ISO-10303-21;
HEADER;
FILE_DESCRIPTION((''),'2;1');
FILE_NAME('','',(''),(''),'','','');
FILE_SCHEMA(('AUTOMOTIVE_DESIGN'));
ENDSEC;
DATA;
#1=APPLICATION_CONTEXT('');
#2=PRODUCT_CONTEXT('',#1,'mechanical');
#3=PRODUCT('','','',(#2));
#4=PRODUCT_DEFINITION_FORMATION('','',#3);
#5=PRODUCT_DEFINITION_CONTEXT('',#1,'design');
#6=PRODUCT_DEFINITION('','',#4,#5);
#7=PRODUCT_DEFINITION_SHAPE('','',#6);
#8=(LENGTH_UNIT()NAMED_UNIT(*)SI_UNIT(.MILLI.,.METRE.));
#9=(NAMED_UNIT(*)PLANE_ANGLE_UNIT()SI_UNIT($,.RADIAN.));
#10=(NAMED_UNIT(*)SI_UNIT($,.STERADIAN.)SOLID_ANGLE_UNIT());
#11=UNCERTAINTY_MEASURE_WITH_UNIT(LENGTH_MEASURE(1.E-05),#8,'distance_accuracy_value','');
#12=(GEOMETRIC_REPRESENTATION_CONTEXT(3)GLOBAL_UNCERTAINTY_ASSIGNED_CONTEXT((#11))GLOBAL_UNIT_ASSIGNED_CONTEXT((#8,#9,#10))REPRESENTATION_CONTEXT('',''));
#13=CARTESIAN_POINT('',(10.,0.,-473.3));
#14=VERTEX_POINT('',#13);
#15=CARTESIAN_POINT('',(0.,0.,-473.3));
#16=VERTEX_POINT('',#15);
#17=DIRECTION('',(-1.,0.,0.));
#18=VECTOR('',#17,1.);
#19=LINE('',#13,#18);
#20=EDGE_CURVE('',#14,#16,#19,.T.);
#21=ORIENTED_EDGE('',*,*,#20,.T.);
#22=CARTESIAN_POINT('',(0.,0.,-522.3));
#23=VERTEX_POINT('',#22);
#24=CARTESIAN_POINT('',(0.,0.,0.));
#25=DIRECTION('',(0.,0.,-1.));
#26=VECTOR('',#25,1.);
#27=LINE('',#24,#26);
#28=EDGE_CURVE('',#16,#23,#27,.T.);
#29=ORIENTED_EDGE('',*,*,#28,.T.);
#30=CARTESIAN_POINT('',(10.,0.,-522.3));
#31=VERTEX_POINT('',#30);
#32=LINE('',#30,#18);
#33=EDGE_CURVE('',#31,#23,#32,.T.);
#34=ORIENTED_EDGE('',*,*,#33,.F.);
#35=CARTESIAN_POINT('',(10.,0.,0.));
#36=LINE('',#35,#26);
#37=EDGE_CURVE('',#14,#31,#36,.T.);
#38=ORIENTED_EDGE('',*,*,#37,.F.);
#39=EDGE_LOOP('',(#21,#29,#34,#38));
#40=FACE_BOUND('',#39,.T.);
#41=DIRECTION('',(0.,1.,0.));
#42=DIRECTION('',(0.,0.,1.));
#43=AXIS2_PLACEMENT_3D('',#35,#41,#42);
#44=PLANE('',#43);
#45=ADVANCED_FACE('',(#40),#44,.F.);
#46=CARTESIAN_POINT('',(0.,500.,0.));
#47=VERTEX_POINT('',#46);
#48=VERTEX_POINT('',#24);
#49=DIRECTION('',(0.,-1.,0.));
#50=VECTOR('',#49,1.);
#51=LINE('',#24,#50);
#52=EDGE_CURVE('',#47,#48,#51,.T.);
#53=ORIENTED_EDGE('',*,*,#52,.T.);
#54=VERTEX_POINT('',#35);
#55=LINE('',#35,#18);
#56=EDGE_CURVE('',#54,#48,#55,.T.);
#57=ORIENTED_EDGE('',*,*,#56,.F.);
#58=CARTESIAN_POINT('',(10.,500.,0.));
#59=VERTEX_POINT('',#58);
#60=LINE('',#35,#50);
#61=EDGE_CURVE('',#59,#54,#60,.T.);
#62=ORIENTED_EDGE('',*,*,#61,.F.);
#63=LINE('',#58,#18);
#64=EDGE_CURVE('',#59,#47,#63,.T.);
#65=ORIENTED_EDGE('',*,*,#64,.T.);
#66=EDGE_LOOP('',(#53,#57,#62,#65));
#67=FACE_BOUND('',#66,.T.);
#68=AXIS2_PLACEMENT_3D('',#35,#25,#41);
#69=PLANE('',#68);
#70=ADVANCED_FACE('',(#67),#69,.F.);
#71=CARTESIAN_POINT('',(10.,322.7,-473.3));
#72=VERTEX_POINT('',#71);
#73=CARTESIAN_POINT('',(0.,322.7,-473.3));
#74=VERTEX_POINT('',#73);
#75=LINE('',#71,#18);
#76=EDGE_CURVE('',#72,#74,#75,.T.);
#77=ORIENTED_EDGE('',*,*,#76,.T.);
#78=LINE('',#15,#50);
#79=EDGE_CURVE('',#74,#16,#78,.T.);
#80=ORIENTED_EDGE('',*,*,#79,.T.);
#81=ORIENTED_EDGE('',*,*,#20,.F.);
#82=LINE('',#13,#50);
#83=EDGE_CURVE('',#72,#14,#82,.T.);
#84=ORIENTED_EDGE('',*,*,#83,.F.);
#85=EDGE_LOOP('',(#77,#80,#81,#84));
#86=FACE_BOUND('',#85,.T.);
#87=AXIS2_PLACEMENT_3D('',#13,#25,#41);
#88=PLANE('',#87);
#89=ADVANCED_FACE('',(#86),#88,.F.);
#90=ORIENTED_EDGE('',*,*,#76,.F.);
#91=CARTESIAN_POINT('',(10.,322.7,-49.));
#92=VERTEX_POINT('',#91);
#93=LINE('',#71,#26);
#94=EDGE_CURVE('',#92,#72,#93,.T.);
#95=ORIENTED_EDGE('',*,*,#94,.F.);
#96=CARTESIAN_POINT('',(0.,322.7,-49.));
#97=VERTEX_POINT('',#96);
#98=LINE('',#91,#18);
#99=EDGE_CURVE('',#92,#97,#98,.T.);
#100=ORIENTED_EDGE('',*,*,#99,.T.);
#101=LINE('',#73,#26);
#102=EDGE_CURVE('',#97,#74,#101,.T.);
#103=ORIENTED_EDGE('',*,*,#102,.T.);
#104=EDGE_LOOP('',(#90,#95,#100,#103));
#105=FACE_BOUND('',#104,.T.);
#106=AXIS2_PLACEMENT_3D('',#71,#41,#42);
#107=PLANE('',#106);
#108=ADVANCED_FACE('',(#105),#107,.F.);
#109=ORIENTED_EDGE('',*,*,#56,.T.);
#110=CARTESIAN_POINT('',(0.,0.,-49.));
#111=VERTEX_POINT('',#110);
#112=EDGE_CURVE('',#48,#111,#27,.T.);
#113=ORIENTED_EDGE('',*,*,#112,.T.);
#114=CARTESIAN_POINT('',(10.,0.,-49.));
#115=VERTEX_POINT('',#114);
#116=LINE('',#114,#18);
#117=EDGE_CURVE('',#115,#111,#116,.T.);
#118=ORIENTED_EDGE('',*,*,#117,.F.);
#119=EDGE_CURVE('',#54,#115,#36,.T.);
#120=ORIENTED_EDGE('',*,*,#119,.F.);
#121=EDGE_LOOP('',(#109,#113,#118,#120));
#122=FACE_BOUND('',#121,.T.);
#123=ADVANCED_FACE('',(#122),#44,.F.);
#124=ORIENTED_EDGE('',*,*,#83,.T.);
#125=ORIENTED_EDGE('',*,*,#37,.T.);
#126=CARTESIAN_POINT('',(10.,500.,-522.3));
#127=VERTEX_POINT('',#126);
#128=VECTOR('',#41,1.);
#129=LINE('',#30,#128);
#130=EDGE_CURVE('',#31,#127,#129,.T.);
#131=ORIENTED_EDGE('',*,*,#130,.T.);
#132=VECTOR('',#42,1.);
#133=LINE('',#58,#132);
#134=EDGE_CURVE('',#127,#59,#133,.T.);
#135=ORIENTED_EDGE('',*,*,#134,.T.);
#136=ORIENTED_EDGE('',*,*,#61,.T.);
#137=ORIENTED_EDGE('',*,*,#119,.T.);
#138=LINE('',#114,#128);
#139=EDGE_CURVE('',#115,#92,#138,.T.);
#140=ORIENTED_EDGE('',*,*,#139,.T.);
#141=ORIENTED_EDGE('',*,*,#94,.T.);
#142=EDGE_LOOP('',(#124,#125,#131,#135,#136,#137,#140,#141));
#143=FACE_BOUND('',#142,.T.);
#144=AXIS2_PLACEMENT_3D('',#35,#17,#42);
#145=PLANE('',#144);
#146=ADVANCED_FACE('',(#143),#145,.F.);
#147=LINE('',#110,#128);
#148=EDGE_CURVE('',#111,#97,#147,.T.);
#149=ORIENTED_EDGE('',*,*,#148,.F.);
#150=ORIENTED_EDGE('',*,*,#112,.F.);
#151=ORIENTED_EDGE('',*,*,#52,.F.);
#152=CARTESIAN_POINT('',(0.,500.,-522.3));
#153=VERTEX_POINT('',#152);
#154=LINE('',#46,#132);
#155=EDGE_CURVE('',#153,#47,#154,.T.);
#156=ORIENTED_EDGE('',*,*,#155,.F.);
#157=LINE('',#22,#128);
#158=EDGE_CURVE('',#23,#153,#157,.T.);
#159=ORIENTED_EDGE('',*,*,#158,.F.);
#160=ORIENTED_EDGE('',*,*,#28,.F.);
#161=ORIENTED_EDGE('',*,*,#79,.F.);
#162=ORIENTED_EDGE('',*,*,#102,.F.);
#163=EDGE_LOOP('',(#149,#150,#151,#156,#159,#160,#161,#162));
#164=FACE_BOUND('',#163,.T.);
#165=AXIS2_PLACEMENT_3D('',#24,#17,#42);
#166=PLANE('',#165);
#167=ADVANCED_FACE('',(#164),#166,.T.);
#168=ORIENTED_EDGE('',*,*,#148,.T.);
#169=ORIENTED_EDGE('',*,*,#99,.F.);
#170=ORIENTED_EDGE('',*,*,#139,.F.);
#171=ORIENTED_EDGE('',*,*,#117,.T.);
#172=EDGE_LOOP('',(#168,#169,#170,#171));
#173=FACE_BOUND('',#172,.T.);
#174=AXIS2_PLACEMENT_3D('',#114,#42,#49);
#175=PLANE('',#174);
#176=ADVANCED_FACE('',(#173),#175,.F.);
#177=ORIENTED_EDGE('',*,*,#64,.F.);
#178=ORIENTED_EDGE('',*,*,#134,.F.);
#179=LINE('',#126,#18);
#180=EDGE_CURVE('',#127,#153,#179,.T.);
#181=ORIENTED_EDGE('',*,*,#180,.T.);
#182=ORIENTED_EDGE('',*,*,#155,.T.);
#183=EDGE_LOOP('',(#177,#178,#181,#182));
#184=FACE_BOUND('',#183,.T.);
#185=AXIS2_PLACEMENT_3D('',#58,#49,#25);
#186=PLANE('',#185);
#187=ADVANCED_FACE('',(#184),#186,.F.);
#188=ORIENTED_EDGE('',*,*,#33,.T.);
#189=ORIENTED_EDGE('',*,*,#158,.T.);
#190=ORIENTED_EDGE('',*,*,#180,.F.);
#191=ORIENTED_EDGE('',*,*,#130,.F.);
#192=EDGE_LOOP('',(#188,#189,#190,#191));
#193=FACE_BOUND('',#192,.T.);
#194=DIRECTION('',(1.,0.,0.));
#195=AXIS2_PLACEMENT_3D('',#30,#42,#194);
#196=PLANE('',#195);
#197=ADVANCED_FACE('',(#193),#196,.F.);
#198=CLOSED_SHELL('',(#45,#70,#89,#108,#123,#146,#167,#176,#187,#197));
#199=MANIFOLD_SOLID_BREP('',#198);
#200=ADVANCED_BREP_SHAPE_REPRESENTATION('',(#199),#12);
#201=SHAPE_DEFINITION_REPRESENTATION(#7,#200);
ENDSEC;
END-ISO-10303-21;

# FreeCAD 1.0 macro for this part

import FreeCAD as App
import Part
import Sketcher
from FreeCAD import Vector
Q = App.Units.Quantity

doc = App.newDocument("Part")
body = doc.addObject("PartDesign::Body", "Body")

# Sketch on YZ plane
sketch1 = body.newObject("Sketcher::SketchObject", "Sketch")
sketch1.AttachmentSupport = (doc.getObject("YZ_Plane"), [""])
sketch1.MapMode = "FlatFace"
sketch1.addGeometry(Part.LineSegment(Vector(500, 0, 0), Vector(0, 0, 0)), False)
sketch1.addGeometry(Part.LineSegment(Vector(0, 0, 0), Vector(0, -522, 0)), False)
sketch1.addGeometry(Part.LineSegment(Vector(0, -522, 0), Vector(500, -522, 0)), False)
sketch1.addGeometry(Part.LineSegment(Vector(500, -522, 0), Vector(500, 0, 0)), False)
sketch1.addConstraint(Sketcher.Constraint("Coincident", 0, 2, 1, 1))
sketch1.addConstraint(Sketcher.Constraint("Coincident", 1, 2, 2, 1))
sketch1.addConstraint(Sketcher.Constraint("Coincident", 2, 2, 3, 1))
sketch1.addConstraint(Sketcher.Constraint("Coincident", 3, 2, 0, 1))
sketch1.addConstraint(Sketcher.Constraint("Horizontal", 0))
sketch1.addConstraint(Sketcher.Constraint("Vertical", 1))
sketch1.addConstraint(Sketcher.Constraint("Horizontal", 2))
sketch1.addConstraint(Sketcher.Constraint("Vertical", 3))
sketch1.addConstraint(Sketcher.Constraint("Coincident", 0, 2, -1, 1))
sketch1.addConstraint(Sketcher.Constraint("DistanceX", 0, 2, 0, 1, Q("500 mm")))
sketch1.addConstraint(Sketcher.Constraint("DistanceY", 1, 2, 1, 1, Q("522.3 mm")))
pad1 = body.newObject("PartDesign::Pad", "Pad")
pad1.Profile = sketch1
pad1.Length = 10

# Sketch on YZ plane
sketch2 = body.newObject("Sketcher::SketchObject", "Sketch001")
sketch2.AttachmentSupport = (doc.getObject("YZ_Plane"), [""])
sketch2.MapMode = "FlatFace"
sketch2.addGeometry(Part.LineSegment(Vector(323, -473, 0), Vector(0, -473, 0)), False)
sketch2.addGeometry(Part.LineSegment(Vector(0, -473, 0), Vector(0, -49, 0)), False)
sketch2.addGeometry(Part.LineSegment(Vector(0, -49, 0), Vector(323, -49, 0)), False)
sketch2.addGeometry(Part.LineSegment(Vector(323, -49, 0), Vector(323, -473, 0)), False)
sketch2.addConstraint(Sketcher.Constraint("Coincident", 0, 2, 1, 1))
sketch2.addConstraint(Sketcher.Constraint("Coincident", 1, 2, 2, 1))
sketch2.addConstraint(Sketcher.Constraint("Coincident", 2, 2, 3, 1))
sketch2.addConstraint(Sketcher.Constraint("Coincident", 3, 2, 0, 1))
sketch2.addConstraint(Sketcher.Constraint("Horizontal", 0))
sketch2.addConstraint(Sketcher.Constraint("Vertical", 1))
sketch2.addConstraint(Sketcher.Constraint("Horizontal", 2))
sketch2.addConstraint(Sketcher.Constraint("Vertical", 3))
sketch2.addConstraint(Sketcher.Constraint("PointOnObject", 0, 2, -2))
sketch2.addConstraint(Sketcher.Constraint("DistanceX", 0, 2, 0, 1, Q("322.7 mm")))
sketch2.addConstraint(Sketcher.Constraint("DistanceY", 1, 1, 1, 2, Q("424.3 mm")))
sketch2.addConstraint(Sketcher.Constraint("DistanceY", 1, 2, -1, 1, Q("49 mm")))
pocket1 = body.newObject("PartDesign::Pocket", "Pocket")
pocket1.Profile = sketch2
pocket1.Length = 10
pocket1.Reversed = True

doc.recompute()
